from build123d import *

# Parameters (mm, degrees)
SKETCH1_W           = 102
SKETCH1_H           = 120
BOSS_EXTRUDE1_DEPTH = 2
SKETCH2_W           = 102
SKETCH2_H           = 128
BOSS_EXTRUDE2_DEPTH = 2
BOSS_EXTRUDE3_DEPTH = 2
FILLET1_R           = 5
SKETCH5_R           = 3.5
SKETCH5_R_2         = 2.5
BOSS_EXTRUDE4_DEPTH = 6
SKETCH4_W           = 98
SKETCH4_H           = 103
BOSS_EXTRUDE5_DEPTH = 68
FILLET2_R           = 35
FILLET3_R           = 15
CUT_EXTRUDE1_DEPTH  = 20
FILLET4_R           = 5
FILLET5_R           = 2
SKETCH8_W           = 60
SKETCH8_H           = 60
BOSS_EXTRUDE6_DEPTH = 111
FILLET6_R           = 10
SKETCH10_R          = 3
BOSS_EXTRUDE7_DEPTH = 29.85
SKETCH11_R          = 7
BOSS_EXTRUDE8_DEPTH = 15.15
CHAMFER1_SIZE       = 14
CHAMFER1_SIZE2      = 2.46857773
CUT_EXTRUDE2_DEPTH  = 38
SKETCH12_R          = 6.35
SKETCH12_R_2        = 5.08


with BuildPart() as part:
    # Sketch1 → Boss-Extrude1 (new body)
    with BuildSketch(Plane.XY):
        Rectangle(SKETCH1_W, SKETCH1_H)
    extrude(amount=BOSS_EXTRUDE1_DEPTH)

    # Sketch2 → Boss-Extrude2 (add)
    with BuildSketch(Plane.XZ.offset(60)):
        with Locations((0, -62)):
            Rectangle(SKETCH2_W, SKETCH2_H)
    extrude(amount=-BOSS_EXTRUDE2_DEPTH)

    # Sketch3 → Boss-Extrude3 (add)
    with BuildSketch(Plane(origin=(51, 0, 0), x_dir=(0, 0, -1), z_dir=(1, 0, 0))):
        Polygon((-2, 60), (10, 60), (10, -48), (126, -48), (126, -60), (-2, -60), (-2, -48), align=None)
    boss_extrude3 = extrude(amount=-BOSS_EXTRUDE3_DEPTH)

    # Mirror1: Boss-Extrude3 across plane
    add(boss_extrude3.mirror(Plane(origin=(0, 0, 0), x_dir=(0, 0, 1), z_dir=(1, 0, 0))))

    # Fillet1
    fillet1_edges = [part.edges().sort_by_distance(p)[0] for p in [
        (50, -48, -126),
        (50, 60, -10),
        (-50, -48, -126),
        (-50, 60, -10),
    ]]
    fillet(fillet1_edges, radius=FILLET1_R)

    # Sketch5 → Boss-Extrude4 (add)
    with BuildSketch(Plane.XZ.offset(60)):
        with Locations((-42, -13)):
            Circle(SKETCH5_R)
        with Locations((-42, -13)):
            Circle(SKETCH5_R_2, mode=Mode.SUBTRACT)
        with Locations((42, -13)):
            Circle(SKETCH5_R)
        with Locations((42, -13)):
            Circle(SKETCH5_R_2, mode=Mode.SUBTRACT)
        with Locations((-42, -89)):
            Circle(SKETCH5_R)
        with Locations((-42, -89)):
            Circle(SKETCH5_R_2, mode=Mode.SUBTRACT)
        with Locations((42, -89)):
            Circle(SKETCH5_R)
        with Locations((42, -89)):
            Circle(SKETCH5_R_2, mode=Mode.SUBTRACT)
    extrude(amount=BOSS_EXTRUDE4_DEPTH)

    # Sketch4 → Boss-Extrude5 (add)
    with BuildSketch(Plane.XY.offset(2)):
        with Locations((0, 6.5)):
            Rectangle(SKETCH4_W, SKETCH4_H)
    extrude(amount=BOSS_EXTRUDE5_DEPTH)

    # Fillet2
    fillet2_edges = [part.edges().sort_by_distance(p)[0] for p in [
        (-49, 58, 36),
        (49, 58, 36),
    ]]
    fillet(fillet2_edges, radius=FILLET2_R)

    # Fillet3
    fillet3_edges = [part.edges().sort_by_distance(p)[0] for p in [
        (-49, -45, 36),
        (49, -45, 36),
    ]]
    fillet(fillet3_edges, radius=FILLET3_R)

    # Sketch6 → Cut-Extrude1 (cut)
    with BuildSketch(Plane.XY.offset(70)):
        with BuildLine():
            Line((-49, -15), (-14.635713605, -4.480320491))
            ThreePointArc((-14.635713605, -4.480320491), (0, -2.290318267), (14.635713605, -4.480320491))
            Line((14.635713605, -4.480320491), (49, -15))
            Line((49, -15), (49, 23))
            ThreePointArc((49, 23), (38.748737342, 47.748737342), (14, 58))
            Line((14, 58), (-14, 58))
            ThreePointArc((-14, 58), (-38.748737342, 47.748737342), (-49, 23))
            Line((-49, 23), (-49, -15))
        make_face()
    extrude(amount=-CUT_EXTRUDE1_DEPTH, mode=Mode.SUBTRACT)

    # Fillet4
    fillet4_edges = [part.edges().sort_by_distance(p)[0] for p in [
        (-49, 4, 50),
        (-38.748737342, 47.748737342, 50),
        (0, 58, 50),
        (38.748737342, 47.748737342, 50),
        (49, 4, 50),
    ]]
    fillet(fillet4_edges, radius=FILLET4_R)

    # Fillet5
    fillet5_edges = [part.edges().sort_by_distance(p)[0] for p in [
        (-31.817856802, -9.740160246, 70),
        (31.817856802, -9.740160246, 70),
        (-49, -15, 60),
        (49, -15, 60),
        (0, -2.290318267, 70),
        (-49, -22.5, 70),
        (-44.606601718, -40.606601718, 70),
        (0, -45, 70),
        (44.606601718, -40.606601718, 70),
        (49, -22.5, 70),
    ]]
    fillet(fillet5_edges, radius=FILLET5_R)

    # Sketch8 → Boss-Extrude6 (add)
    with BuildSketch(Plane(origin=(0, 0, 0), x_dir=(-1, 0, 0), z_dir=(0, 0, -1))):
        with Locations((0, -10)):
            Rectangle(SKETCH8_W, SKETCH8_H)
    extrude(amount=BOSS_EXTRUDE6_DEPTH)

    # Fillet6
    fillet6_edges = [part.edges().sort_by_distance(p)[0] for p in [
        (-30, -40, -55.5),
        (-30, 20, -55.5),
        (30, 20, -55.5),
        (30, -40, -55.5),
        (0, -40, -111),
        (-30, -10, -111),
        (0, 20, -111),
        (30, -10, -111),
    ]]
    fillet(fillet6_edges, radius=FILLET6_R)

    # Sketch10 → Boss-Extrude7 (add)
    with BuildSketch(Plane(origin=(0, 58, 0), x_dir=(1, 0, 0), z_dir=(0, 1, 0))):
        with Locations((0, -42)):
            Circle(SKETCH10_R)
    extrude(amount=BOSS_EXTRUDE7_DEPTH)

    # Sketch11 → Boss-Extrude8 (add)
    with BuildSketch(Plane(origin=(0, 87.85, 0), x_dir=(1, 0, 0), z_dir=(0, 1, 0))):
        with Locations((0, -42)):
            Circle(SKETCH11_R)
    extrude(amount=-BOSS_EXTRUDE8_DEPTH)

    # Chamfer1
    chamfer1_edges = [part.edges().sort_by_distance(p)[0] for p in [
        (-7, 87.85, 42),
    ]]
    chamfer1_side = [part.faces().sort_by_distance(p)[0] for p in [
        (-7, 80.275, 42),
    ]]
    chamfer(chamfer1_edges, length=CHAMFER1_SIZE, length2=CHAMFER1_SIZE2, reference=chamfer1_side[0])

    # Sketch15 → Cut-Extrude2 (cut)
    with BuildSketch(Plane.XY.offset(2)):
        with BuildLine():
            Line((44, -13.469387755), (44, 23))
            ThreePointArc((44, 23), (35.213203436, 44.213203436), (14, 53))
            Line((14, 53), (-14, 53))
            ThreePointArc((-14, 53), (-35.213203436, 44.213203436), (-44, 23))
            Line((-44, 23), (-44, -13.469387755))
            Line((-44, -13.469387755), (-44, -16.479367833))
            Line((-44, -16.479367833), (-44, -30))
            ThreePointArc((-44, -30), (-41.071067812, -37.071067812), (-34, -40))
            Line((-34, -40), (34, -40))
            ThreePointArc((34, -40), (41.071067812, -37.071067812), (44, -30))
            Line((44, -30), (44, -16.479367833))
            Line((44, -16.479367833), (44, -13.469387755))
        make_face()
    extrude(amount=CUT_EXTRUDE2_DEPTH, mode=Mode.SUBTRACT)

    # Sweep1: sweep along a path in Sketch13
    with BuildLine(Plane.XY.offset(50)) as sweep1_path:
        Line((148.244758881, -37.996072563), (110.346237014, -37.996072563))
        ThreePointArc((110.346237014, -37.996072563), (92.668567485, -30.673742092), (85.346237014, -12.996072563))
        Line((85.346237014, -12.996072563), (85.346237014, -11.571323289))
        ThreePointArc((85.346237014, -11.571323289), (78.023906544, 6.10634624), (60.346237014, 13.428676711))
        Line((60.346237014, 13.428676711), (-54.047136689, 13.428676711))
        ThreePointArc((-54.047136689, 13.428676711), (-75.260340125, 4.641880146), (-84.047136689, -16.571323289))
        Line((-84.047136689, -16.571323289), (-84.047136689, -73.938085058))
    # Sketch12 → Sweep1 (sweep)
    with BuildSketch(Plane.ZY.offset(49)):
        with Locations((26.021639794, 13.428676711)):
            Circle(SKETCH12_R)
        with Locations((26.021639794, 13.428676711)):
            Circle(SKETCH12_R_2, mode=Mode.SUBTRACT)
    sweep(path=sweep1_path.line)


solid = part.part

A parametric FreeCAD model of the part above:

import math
import FreeCAD as App
import Part
import Sketcher


def edges_at(feature, points):
    """Names of the edges that pass closest to the given points."""
    edges = feature.Shape.Edges
    near = lambda p: min(range(len(edges)), key=lambda i: edges[i].distToShape(Part.Vertex(*p))[0])
    return sorted({f"Edge{near(p) + 1}" for p in points})


def add_polygon(sketch, points):
    """Adds a closed chain of lines whose ends are joined by coincident constraints."""
    first, n = sketch.GeometryCount, len(points)
    for a, b in zip(points, points[1:] + points[:1]):
        sketch.addGeometry(Part.LineSegment(App.Vector(*a, 0), App.Vector(*b, 0)), False)
    for i in range(n):
        sketch.addConstraint(Sketcher.Constraint("Coincident", first + i, 2, first + (i + 1) % n, 1))

doc = App.newDocument("Part")
body = doc.addObject("PartDesign::Body", "Body")

# Sketch on XY plane
sketch1 = doc.addObject("Sketcher::SketchObject", "Sketch")
body.addObject(sketch1)
sketch1.AttachmentSupport = (doc.XY_Plane, [""])
sketch1.MapMode = "FlatFace"
add_polygon(sketch1, [(-51, 60), (-51, -60), (51, -60), (51, 60)])  # lines 0-3
sketch1.addConstraint([
    Sketcher.Constraint("Vertical", 0),
    Sketcher.Constraint("Horizontal", 1),
    Sketcher.Constraint("Vertical", 2),
    Sketcher.Constraint("Horizontal", 3),
    Sketcher.Constraint("Symmetric", 0, 2, 2, 2, -1, 1),
    Sketcher.Constraint("DistanceX", 1, 1, 1, 2, 102.0),
    Sketcher.Constraint("DistanceY", 0, 2, 0, 1, 120.0),
])
pad1 = doc.addObject("PartDesign::Pad", "Pad")
body.addObject(pad1)
pad1.Profile = sketch1
pad1.Length = 2

# Sketch on XZ plane
sketch2 = doc.addObject("Sketcher::SketchObject", "Sketch001")
body.addObject(sketch2)
sketch2.AttachmentSupport = (doc.XZ_Plane, [""])
sketch2.MapMode = "FlatFace"
sketch2.AttachmentOffset = App.Placement(App.Vector(0, 0, 60), App.Rotation())
add_polygon(sketch2, [(-51, 2), (-51, -126), (51, -126), (51, 2)])  # lines 0-3
sketch2.addConstraint([
    Sketcher.Constraint("Vertical", 0),
    Sketcher.Constraint("Horizontal", 1),
    Sketcher.Constraint("Vertical", 2),
    Sketcher.Constraint("Horizontal", 3),
    Sketcher.Constraint("DistanceX", 1, 1, 1, 2, 102.0),
    Sketcher.Constraint("DistanceY", 0, 2, 0, 1, 128.0),
    Sketcher.Constraint("DistanceX", 0, 2, -1, 1, 51.0),
    Sketcher.Constraint("DistanceY", 0, 2, -1, 1, 126.0),
])
pad2 = doc.addObject("PartDesign::Pad", "Pad001")
body.addObject(pad2)
pad2.Profile = sketch2
pad2.Length = 2
pad2.Reversed = True

# Sketch on YZ plane
sketch3 = doc.addObject("Sketcher::SketchObject", "Sketch002")
body.addObject(sketch3)
sketch3.AttachmentSupport = (doc.YZ_Plane, [""])
sketch3.MapMode = "FlatFace"
sketch3.AttachmentOffset = App.Placement(App.Vector(0, 0, 51), App.Rotation())
add_polygon(sketch3, [(60, -10), (60, 2), (-60, 2), (-60, -126), (-48, -126), (-48, -10)])  # lines 0-5
sketch3.addConstraint([
    Sketcher.Constraint("Vertical", 0),
    Sketcher.Constraint("Horizontal", 1),
    Sketcher.Constraint("Vertical", 2),
    Sketcher.Constraint("Horizontal", 3),
    Sketcher.Constraint("Vertical", 4),
    Sketcher.Constraint("Horizontal", 5),
    Sketcher.Constraint("Equal", 3, 0),
    Sketcher.Constraint("DistanceX", 1, 2, 1, 1, 120.0),
    Sketcher.Constraint("DistanceX", 3, 1, 3, 2, 12.0),
    Sketcher.Constraint("DistanceY", 2, 2, 2, 1, 128.0),
    Sketcher.Constraint("DistanceX", -1, 1, 0, 2, 60.0),
    Sketcher.Constraint("DistanceY", -1, 1, 0, 2, 2.0),
])
pad3 = doc.addObject("PartDesign::Pad", "Pad002")
body.addObject(pad3)
pad3.Profile = sketch3
pad3.Length = 2
pad3.Reversed = True
doc.recompute()

mirrored = doc.addObject("PartDesign::Mirrored", "Mirrored")
body.addObject(mirrored)
mirrored.Originals = [pad3]
mirrored.MirrorPlane = (doc.YZ_Plane, [""])
body.Tip = mirrored
doc.recompute()

fillet = doc.addObject("PartDesign::Fillet", "Fillet")
body.addObject(fillet)
fillet.Base = (mirrored, edges_at(mirrored, [
    (50, -48, -126),
    (50, 60, -10),
    (-50, -48, -126),
    (-50, 60, -10),
]))
fillet.Radius = 5

# Sketch on XZ plane
sketch4 = doc.addObject("Sketcher::SketchObject", "Sketch003")
body.addObject(sketch4)
sketch4.AttachmentSupport = (doc.XZ_Plane, [""])
sketch4.MapMode = "FlatFace"
sketch4.AttachmentOffset = App.Placement(App.Vector(0, 0, 60), App.Rotation())
sketch4.addGeometry([
    Part.Circle(App.Vector(-42, -13, 0), App.Vector(0, 0, 1), 3.5),  # 0
    Part.Circle(App.Vector(-42, -13, 0), App.Vector(0, 0, 1), 2.5),  # 1
    Part.Circle(App.Vector(42, -13, 0), App.Vector(0, 0, 1), 3.5),  # 2
    Part.Circle(App.Vector(42, -13, 0), App.Vector(0, 0, 1), 2.5),  # 3
    Part.Circle(App.Vector(-42, -89, 0), App.Vector(0, 0, 1), 3.5),  # 4
    Part.Circle(App.Vector(-42, -89, 0), App.Vector(0, 0, 1), 2.5),  # 5
    Part.Circle(App.Vector(42, -89, 0), App.Vector(0, 0, 1), 3.5),  # 6
    Part.Circle(App.Vector(42, -89, 0), App.Vector(0, 0, 1), 2.5),  # 7
], False)
sketch4.addConstraint([
    Sketcher.Constraint("Coincident", 1, 3, 0, 3),
    Sketcher.Constraint("Coincident", 3, 3, 2, 3),
    Sketcher.Constraint("Coincident", 5, 3, 4, 3),
    Sketcher.Constraint("Coincident", 7, 3, 6, 3),
    Sketcher.Constraint("Equal", 0, 2),
    Sketcher.Constraint("Equal", 1, 3),
    Sketcher.Constraint("Equal", 2, 4),
    Sketcher.Constraint("Equal", 3, 5),
    Sketcher.Constraint("Equal", 4, 6),
    Sketcher.Constraint("Equal", 5, 7),
    Sketcher.Constraint("Symmetric", 0, 3, 2, 3, -2),
    Sketcher.Constraint("Symmetric", 4, 3, 6, 3, -2),
    Sketcher.Constraint("Vertical", 1, 3, 4, 3),
    Sketcher.Constraint("Diameter", 0, 7.0),
    Sketcher.Constraint("Diameter", 1, 5.0),
    Sketcher.Constraint("DistanceX", 0, 3, -1, 1, 42.0),
    Sketcher.Constraint("DistanceY", 0, 3, -1, 1, 13.0),
    Sketcher.Constraint("DistanceY", 4, 3, -1, 1, 89.0),
])
pad4 = doc.addObject("PartDesign::Pad", "Pad003")
body.addObject(pad4)
pad4.Profile = sketch4
pad4.Length = 6

# Sketch on XY plane
sketch5 = doc.addObject("Sketcher::SketchObject", "Sketch004")
body.addObject(sketch5)
sketch5.AttachmentSupport = (doc.XY_Plane, [""])
sketch5.MapMode = "FlatFace"
sketch5.AttachmentOffset = App.Placement(App.Vector(0, 0, 2), App.Rotation())
add_polygon(sketch5, [(-49, 58), (-49, -45), (49, -45), (49, 58)])  # lines 0-3
sketch5.addConstraint([
    Sketcher.Constraint("Vertical", 0),
    Sketcher.Constraint("Horizontal", 1),
    Sketcher.Constraint("Vertical", 2),
    Sketcher.Constraint("Horizontal", 3),
    Sketcher.Constraint("DistanceX", 1, 1, 1, 2, 98.0),
    Sketcher.Constraint("DistanceY", 0, 2, 0, 1, 103.0),
    Sketcher.Constraint("DistanceX", 0, 2, -1, 1, 49.0),
    Sketcher.Constraint("DistanceY", 0, 2, -1, 1, 45.0),
])
pad5 = doc.addObject("PartDesign::Pad", "Pad004")
body.addObject(pad5)
pad5.Profile = sketch5
pad5.Length = 68
doc.recompute()

fillet2 = doc.addObject("PartDesign::Fillet", "Fillet001")
body.addObject(fillet2)
fillet2.Base = (pad5, edges_at(pad5, [(-49, 58, 36), (49, 58, 36)]))
fillet2.Radius = 35
doc.recompute()

fillet3 = doc.addObject("PartDesign::Fillet", "Fillet002")
body.addObject(fillet3)
fillet3.Base = (fillet2, edges_at(fillet2, [(-49, -45, 36), (49, -45, 36)]))
fillet3.Radius = 15

# Sketch on XY plane
sketch6 = doc.addObject("Sketcher::SketchObject", "Sketch005")
body.addObject(sketch6)
sketch6.AttachmentSupport = (doc.XY_Plane, [""])
sketch6.MapMode = "FlatFace"
sketch6.AttachmentOffset = App.Placement(App.Vector(0, 0, 70), App.Rotation())
sketch6.addGeometry([
    Part.LineSegment(App.Vector(-49, -15, 0), App.Vector(-15, -4, 0)),  # 0
    Part.ArcOfCircle(Part.Circle(App.Vector(0, -52, 0), App.Vector(0, 0, 1), 50), math.radians(73), math.radians(107)),  # 1
    Part.LineSegment(App.Vector(15, -4, 0), App.Vector(49, -15, 0)),  # 2
    Part.LineSegment(App.Vector(49, -15, 0), App.Vector(49, 23, 0)),  # 3
    Part.ArcOfCircle(Part.Circle(App.Vector(14, 23, 0), App.Vector(0, 0, 1), 35), math.radians(0), math.radians(90)),  # 4
    Part.LineSegment(App.Vector(14, 58, 0), App.Vector(-14, 58, 0)),  # 5
    Part.ArcOfCircle(Part.Circle(App.Vector(-14, 23, 0), App.Vector(0, 0, 1), 35), math.radians(90), math.radians(180)),  # 6
    Part.LineSegment(App.Vector(-49, 23, 0), App.Vector(-49, -15, 0)),  # 7
], False)
sketch6.addConstraint([
    Sketcher.Constraint("Tangent", 0, 2, 1, 2),
    Sketcher.Constraint("Tangent", 1, 1, 2, 1),
    Sketcher.Constraint("Coincident", 2, 2, 3, 1),
    Sketcher.Constraint("Tangent", 3, 2, 4, 1),
    Sketcher.Constraint("Tangent", 4, 2, 5, 1),
    Sketcher.Constraint("Tangent", 5, 2, 6, 1),
    Sketcher.Constraint("Tangent", 6, 2, 7, 1),
    Sketcher.Constraint("Coincident", 7, 2, 0, 1),
    Sketcher.Constraint("Vertical", 3),
    Sketcher.Constraint("Horizontal", 5),
    Sketcher.Constraint("Vertical", 7),
    Sketcher.Constraint("Equal", 4, 6),
    Sketcher.Constraint("Symmetric", 0, 2, 1, 1, -2),
    Sketcher.Constraint("Horizontal", 2, 2, 7, 2),
    Sketcher.Constraint("Radius", 1, 50.0),
    Sketcher.Constraint("Radius", 4, 35.0),
    Sketcher.Constraint("DistanceX", 5, 2, 5, 1, 28.0),
    Sketcher.Constraint("DistanceY", 3, 1, 3, 2, 38.0),
    Sketcher.Constraint("DistanceY", -1, 1, 4, 3, 23.0),
    Sketcher.Constraint("Distance", 0, 35.938389),
])
pocket1 = doc.addObject("PartDesign::Pocket", "Pocket")
body.addObject(pocket1)
pocket1.Profile = sketch6
pocket1.Length = 20
doc.recompute()

fillet4 = doc.addObject("PartDesign::Fillet", "Fillet003")
body.addObject(fillet4)
fillet4.Base = (pocket1, edges_at(pocket1, [
    (-49, 4, 50),
    (-38.749, 47.749, 50),
    (0, 58, 50),
    (38.749, 47.749, 50),
    (49, 4, 50),
]))
fillet4.Radius = 5
doc.recompute()

fillet5 = doc.addObject("PartDesign::Fillet", "Fillet004")
body.addObject(fillet5)
fillet5.Base = (fillet4, edges_at(fillet4, [
    (-31.818, -9.74, 70),
    (31.818, -9.74, 70),
    (-49, -15, 57.5),
    (49, -15, 57.5),
    (0, -2.29, 70),
    (-49, -22.5, 70),
    (-44.607, -40.607, 70),
    (0, -45, 70),
    (44.607, -40.607, 70),
    (49, -22.5, 70),
]))
fillet5.Radius = 2

# Sketch on XY plane
sketch7 = doc.addObject("Sketcher::SketchObject", "Sketch006")
body.addObject(sketch7)
sketch7.AttachmentSupport = (doc.XY_Plane, [""])
sketch7.MapMode = "FlatFace"
add_polygon(sketch7, [(30, 20), (30, -40), (-30, -40), (-30, 20)])  # lines 0-3
sketch7.addConstraint([
    Sketcher.Constraint("Vertical", 0),
    Sketcher.Constraint("Horizontal", 1),
    Sketcher.Constraint("Vertical", 2),
    Sketcher.Constraint("Horizontal", 3),
    Sketcher.Constraint("Equal", 3, 0),
    Sketcher.Constraint("DistanceX", 1, 2, 1, 1, 60.0),
    Sketcher.Constraint("DistanceX", -1, 1, 0, 2, 30.0),
    Sketcher.Constraint("DistanceY", 0, 2, -1, 1, 40.0),
])
pad6 = doc.addObject("PartDesign::Pad", "Pad005")
body.addObject(pad6)
pad6.Profile = sketch7
pad6.Length = 111
pad6.Reversed = True
doc.recompute()

fillet6 = doc.addObject("PartDesign::Fillet", "Fillet005")
body.addObject(fillet6)
fillet6.Base = (pad6, edges_at(pad6, [
    (-30, -40, -55.5),
    (-30, 20, -55.5),
    (30, 20, -55.5),
    (30, -40, -55.5),
    (0, -40, -111),
    (-30, -10, -111),
    (0, 20, -111),
    (30, -10, -111),
]))
fillet6.Radius = 10

# Sketch on XZ plane
sketch8 = doc.addObject("Sketcher::SketchObject", "Sketch007")
body.addObject(sketch8)
sketch8.AttachmentSupport = (doc.XZ_Plane, [""])
sketch8.MapMode = "FlatFace"
sketch8.AttachmentOffset = App.Placement(App.Vector(0, 0, -58), App.Rotation())
sketch8.addGeometry(Part.Circle(App.Vector(0, 42, 0), App.Vector(0, 0, 1), 3), False)
sketch8.addConstraint([
    Sketcher.Constraint("PointOnObject", 0, 3, -2),
    Sketcher.Constraint("Diameter", 0, 6.0),
    Sketcher.Constraint("DistanceY", -1, 1, 0, 3, 42.0),
])
pad7 = doc.addObject("PartDesign::Pad", "Pad006")
body.addObject(pad7)
pad7.Profile = sketch8
pad7.Length = 29.85
pad7.Reversed = True

# Sketch on XZ plane
sketch9 = doc.addObject("Sketcher::SketchObject", "Sketch008")
body.addObject(sketch9)
sketch9.AttachmentSupport = (doc.XZ_Plane, [""])
sketch9.MapMode = "FlatFace"
sketch9.AttachmentOffset = App.Placement(App.Vector(0, 0, -87.85), App.Rotation())
sketch9.addGeometry(Part.Circle(App.Vector(0, 42, 0), App.Vector(0, 0, 1), 7), False)
sketch9.addConstraint([
    Sketcher.Constraint("PointOnObject", 0, 3, -2),
    Sketcher.Constraint("Diameter", 0, 14.0),
    Sketcher.Constraint("DistanceY", -1, 1, 0, 3, 42.0),
])
pad8 = doc.addObject("PartDesign::Pad", "Pad007")
body.addObject(pad8)
pad8.Profile = sketch9
pad8.Length = 15.15
doc.recompute()

chamfer = doc.addObject("PartDesign::Chamfer", "Chamfer")
body.addObject(chamfer)
chamfer.Base = (pad8, edges_at(pad8, [(-7, 87.85, 42)]))
chamfer.ChamferType = "Two distances"
chamfer.Size = 14
chamfer.Size2 = 2.468578

# Sketch on XY plane
sketch10 = doc.addObject("Sketcher::SketchObject", "Sketch009")
body.addObject(sketch10)
sketch10.AttachmentSupport = (doc.XY_Plane, [""])
sketch10.MapMode = "FlatFace"
sketch10.AttachmentOffset = App.Placement(App.Vector(0, 0, 2), App.Rotation())
sketch10.addGeometry([
    Part.ArcOfCircle(Part.Circle(App.Vector(14, 23, 0), App.Vector(0, 0, 1), 30), math.radians(0), math.radians(90)),  # 0
    Part.LineSegment(App.Vector(14, 53, 0), App.Vector(-14, 53, 0)),  # 1
    Part.ArcOfCircle(Part.Circle(App.Vector(-14, 23, 0), App.Vector(0, 0, 1), 30), math.radians(90), math.radians(180)),  # 2
    Part.LineSegment(App.Vector(-44, 23, 0), App.Vector(-44, -30, 0)),  # 3
    Part.ArcOfCircle(Part.Circle(App.Vector(-34, -30, 0), App.Vector(0, 0, 1), 10), math.radians(180), math.radians(270)),  # 4
    Part.LineSegment(App.Vector(-34, -40, 0), App.Vector(34, -40, 0)),  # 5
    Part.ArcOfCircle(Part.Circle(App.Vector(34, -30, 0), App.Vector(0, 0, 1), 10), math.radians(-90), math.radians(0)),  # 6
    Part.LineSegment(App.Vector(44, -30, 0), App.Vector(44, 23, 0)),  # 7
], False)
sketch10.addConstraint([
    Sketcher.Constraint("Tangent", 0, 2, 1, 1),
    Sketcher.Constraint("Tangent", 1, 2, 2, 1),
    Sketcher.Constraint("Tangent", 2, 2, 3, 1),
    Sketcher.Constraint("Tangent", 3, 2, 4, 1),
    Sketcher.Constraint("Tangent", 4, 2, 5, 1),
    Sketcher.Constraint("Tangent", 5, 2, 6, 1),
    Sketcher.Constraint("Tangent", 6, 2, 7, 1),
    Sketcher.Constraint("Tangent", 7, 2, 0, 1),
    Sketcher.Constraint("Horizontal", 1),
    Sketcher.Constraint("Vertical", 3),
    Sketcher.Constraint("Horizontal", 5),
    Sketcher.Constraint("Vertical", 7),
    Sketcher.Constraint("Equal", 0, 2),
    Sketcher.Constraint("Equal", 4, 6),
    Sketcher.Constraint("Radius", 0, 30.0),
    Sketcher.Constraint("Radius", 4, 10.0),
    Sketcher.Constraint("DistanceX", 1, 2, 1, 1, 28.0),
    Sketcher.Constraint("DistanceY", 3, 2, 3, 1, 53.0),
    Sketcher.Constraint("DistanceX", -1, 1, 0, 3, 14.0),
    Sketcher.Constraint("DistanceY", -1, 1, 0, 3, 23.0),
])
pocket2 = doc.addObject("PartDesign::Pocket", "Pocket001")
body.addObject(pocket2)
pocket2.Profile = sketch10
pocket2.Length = 38
pocket2.Reversed = True

# Sketch on YZ plane
sketch11 = doc.addObject("Sketcher::SketchObject", "Sketch010")
body.addObject(sketch11)
sketch11.AttachmentSupport = (doc.YZ_Plane, [""])
sketch11.MapMode = "FlatFace"
sketch11.AttachmentOffset = App.Placement(App.Vector(0, 0, -49), App.Rotation())
sketch11.addGeometry([
    Part.Circle(App.Vector(13, 26, 0), App.Vector(0, 0, 1), 6),
    Part.Circle(App.Vector(13, 26, 0), App.Vector(0, 0, 1), 5),
], False)
sketch11.addConstraint([
    Sketcher.Constraint("Coincident", 1, 3, 0, 3),
    Sketcher.Constraint("Diameter", 0, 12.7),
    Sketcher.Constraint("Diameter", 1, 10.16),
    Sketcher.Constraint("DistanceY", -1, 1, 0, 3, 26.02164),
    Sketcher.Constraint("DistanceX", -1, 1, 0, 3, 13.428677),
])

# Sketch on XY plane
sketch12 = doc.addObject("Sketcher::SketchObject", "Sketch011")
body.addObject(sketch12)
sketch12.AttachmentSupport = (doc.XY_Plane, [""])
sketch12.MapMode = "FlatFace"
sketch12.AttachmentOffset = App.Placement(App.Vector(0, 0, 50), App.Rotation())
sketch12.addGeometry([
    Part.LineSegment(App.Vector(148.2, -38, 0), App.Vector(110.3, -38, 0)),  # 0
    Part.ArcOfCircle(Part.Circle(App.Vector(110.3, -13, 0), App.Vector(0, 0, 1), 25), math.radians(-180), math.radians(-90)),  # 1
    Part.LineSegment(App.Vector(85.3, -13, 0), App.Vector(85.3, -11.6, 0)),  # 2
    Part.ArcOfCircle(Part.Circle(App.Vector(60.3, -11.6, 0), App.Vector(0, 0, 1), 25), math.radians(0), math.radians(90)),  # 3
    Part.LineSegment(App.Vector(60.3, 13.4, 0), App.Vector(-54, 13.4, 0)),  # 4
    Part.ArcOfCircle(Part.Circle(App.Vector(-54, -16.6, 0), App.Vector(0, 0, 1), 30), math.radians(90), math.radians(180)),  # 5
    Part.LineSegment(App.Vector(-84, -16.6, 0), App.Vector(-84, -73.9, 0)),  # 6
], False)
sketch12.addConstraint([
    Sketcher.Constraint("Tangent", 0, 2, 1, 2),
    Sketcher.Constraint("Tangent", 1, 1, 2, 1),
    Sketcher.Constraint("Tangent", 2, 2, 3, 1),
    Sketcher.Constraint("Tangent", 3, 2, 4, 1),
    Sketcher.Constraint("Tangent", 4, 2, 5, 1),
    Sketcher.Constraint("Tangent", 5, 2, 6, 1),
    Sketcher.Constraint("Horizontal", 0),
    Sketcher.Constraint("Vertical", 2),
    Sketcher.Constraint("Horizontal", 4),
    Sketcher.Constraint("Vertical", 6),
    Sketcher.Constraint("Equal", 1, 3),
    Sketcher.Constraint("Radius", 1, 25.0),
    Sketcher.Constraint("Radius", 5, 30.0),
    Sketcher.Constraint("DistanceX", 0, 2, 0, 1, 37.898522),
    Sketcher.Constraint("DistanceY", 2, 1, 2, 2, 1.424749),
    Sketcher.Constraint("DistanceY", 6, 2, 6, 1, 57.366762),
    Sketcher.Constraint("DistanceX", 4, 2, 4, 1, 114.393374),
    Sketcher.Constraint("DistanceX", -1, 1, 0, 1, 148.244759),
    Sketcher.Constraint("DistanceY", 1, 3, -1, 1, 12.996073),
])
doc.recompute()

additivepipe = doc.addObject("PartDesign::AdditivePipe", "AdditivePipe")
body.addObject(additivepipe)
additivepipe.Profile = sketch11
additivepipe.Spine = (sketch12, ["Edge1", "Edge2", "Edge3", "Edge4", "Edge5", "Edge6", "Edge7"])

doc.recompute()
